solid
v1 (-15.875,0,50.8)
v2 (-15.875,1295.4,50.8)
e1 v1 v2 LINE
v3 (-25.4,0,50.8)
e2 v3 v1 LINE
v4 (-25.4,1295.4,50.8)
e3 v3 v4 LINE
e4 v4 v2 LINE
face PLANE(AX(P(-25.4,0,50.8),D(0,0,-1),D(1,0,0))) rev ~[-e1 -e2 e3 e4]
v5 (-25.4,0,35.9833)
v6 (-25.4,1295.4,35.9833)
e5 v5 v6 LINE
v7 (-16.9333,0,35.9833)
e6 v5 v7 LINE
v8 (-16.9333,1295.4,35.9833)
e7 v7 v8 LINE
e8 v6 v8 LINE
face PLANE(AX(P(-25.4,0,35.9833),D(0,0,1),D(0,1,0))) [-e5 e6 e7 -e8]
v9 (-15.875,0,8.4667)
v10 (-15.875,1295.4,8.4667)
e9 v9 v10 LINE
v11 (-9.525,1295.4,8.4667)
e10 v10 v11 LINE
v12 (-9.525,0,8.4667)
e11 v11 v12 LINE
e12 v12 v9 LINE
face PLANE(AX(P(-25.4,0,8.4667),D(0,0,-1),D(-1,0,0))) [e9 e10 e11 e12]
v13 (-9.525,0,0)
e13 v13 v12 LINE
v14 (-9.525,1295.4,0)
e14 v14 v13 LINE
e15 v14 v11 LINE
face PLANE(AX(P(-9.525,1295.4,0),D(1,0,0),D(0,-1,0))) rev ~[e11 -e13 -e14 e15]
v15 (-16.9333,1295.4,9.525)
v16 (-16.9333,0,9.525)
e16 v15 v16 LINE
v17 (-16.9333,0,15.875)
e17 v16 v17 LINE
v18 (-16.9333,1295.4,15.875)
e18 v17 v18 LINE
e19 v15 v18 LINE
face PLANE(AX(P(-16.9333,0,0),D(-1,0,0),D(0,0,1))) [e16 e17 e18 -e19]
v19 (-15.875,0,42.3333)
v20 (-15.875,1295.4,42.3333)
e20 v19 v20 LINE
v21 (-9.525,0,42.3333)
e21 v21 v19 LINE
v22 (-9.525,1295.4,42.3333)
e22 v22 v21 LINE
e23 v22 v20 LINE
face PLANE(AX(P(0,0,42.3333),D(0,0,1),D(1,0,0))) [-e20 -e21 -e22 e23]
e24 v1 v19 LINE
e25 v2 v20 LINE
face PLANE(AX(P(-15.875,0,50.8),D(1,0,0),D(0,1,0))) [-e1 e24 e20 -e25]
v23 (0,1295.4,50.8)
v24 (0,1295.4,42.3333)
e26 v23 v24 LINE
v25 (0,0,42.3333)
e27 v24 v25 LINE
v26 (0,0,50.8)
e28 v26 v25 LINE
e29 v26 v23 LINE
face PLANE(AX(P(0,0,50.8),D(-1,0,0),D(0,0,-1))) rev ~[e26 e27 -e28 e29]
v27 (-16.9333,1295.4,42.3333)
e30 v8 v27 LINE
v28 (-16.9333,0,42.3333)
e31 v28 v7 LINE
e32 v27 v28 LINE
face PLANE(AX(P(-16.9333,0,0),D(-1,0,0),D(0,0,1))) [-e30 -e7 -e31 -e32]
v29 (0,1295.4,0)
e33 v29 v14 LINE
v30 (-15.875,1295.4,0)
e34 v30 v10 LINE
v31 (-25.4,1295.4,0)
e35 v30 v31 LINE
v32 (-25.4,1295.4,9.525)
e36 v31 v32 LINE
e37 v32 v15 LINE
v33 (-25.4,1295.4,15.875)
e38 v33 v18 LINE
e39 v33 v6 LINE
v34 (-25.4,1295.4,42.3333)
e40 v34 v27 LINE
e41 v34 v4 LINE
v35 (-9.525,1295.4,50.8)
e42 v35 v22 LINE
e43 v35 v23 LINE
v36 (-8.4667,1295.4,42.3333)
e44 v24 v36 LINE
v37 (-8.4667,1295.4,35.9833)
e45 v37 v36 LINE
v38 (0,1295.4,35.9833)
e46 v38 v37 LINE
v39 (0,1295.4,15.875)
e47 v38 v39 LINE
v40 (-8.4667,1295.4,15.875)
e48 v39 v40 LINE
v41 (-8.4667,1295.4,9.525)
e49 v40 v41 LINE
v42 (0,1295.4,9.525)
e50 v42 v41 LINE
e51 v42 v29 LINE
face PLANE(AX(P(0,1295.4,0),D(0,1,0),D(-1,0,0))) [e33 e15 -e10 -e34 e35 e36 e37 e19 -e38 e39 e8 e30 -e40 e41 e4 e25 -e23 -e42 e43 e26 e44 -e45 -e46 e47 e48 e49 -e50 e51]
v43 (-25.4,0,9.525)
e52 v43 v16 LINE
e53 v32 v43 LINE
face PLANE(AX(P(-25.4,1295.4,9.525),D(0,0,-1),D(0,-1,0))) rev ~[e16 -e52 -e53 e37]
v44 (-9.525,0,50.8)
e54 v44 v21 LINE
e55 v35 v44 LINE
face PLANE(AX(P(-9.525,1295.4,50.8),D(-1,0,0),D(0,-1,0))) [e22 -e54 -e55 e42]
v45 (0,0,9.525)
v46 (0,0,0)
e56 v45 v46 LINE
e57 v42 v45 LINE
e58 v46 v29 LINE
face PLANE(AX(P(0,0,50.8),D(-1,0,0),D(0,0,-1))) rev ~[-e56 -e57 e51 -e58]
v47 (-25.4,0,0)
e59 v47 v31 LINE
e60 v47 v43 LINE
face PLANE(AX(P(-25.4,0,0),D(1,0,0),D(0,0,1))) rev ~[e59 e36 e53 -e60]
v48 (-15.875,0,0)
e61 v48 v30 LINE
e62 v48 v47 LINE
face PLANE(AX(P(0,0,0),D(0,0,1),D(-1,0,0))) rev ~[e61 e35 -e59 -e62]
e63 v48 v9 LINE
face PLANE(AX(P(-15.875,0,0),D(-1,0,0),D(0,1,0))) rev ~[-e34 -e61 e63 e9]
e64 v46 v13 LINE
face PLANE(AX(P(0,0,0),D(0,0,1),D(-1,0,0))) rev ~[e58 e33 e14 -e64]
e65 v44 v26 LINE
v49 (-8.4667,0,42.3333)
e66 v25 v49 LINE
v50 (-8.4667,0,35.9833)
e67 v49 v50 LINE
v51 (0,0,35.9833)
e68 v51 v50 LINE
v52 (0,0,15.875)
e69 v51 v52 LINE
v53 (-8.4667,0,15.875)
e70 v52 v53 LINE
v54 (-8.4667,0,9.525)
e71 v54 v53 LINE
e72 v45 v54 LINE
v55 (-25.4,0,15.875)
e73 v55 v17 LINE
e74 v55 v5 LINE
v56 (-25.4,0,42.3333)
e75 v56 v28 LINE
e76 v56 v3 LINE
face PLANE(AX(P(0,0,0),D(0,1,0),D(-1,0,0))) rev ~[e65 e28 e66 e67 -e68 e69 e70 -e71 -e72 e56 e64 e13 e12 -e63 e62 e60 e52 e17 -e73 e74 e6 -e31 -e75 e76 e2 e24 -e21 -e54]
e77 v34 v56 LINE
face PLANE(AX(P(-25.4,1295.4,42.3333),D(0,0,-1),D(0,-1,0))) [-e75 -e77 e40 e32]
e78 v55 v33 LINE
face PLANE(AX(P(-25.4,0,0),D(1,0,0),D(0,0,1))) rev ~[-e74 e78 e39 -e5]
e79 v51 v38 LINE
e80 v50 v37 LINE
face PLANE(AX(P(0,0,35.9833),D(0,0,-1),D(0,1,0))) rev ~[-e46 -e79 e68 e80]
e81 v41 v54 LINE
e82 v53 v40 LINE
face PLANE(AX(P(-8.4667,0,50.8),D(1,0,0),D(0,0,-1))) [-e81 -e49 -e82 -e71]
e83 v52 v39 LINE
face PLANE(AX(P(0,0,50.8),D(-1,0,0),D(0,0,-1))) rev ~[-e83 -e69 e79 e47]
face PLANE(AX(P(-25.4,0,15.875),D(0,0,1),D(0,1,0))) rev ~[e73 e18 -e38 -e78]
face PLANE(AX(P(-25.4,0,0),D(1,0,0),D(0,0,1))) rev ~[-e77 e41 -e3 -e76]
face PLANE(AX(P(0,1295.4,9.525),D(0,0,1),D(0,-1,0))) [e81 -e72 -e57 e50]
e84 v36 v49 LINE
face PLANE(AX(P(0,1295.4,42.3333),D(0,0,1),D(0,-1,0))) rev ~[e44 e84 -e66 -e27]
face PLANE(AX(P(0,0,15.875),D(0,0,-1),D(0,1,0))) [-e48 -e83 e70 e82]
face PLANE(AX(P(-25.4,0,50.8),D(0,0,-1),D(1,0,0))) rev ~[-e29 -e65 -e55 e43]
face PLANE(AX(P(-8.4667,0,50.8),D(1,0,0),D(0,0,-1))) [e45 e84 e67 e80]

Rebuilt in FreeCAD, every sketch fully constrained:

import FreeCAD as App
import Part
import Sketcher
from FreeCAD import Vector
Q = App.Units.Quantity


def add_polygon(sketch, points):
    """Adds a closed chain of lines whose ends are joined by coincident constraints."""
    first, n = sketch.GeometryCount, len(points)
    for a, b in zip(points, points[1:] + points[:1]):
        sketch.addGeometry(Part.LineSegment(App.Vector(*a, 0), App.Vector(*b, 0)), False)
    for i in range(n):
        sketch.addConstraint(Sketcher.Constraint("Coincident", first + i, 2, first + (i + 1) % n, 1))

doc = App.newDocument("Part")
body = doc.addObject("PartDesign::Body", "Body")

# Sketch on XZ plane
sketch1 = body.newObject("Sketcher::SketchObject", "Sketch")
sketch1.AttachmentSupport = (doc.getObject("XZ_Plane"), [""])
sketch1.MapMode = "FlatFace"
add_polygon(sketch1, [(0, 51), (0, 0), (-25, 0), (-25, 51)])  # lines 0-3
sketch1.addConstraint([
    Sketcher.Constraint("Vertical", 0),
    Sketcher.Constraint("Horizontal", 1),
    Sketcher.Constraint("Vertical", 2),
    Sketcher.Constraint("Horizontal", 3),
    Sketcher.Constraint("Coincident", 0, 2, -1, 1),
    Sketcher.Constraint("DistanceX", 1, 2, 1, 1, Q("1 in")),
    Sketcher.Constraint("DistanceY", 0, 2, 0, 1, Q("2 in")),
])
pad1 = body.newObject("PartDesign::Pad", "Pad")
pad1.Profile = sketch1
pad1.Length = Q("51 in")
pad1.Reversed = True

# Sketch on XY plane
sketch2 = body.newObject("Sketcher::SketchObject", "Sketch001")
sketch2.AttachmentSupport = (doc.getObject("XY_Plane"), [""])
sketch2.MapMode = "FlatFace"
sketch2.AttachmentOffset = App.Placement(Vector(0, 0, 2 * 25.4), App.Rotation())
add_polygon(sketch2, [(-16, 0), (-10, 0), (-10, 1295), (-16, 1295)])  # lines 0-3
sketch2.addConstraint([
    Sketcher.Constraint("Horizontal", 0),
    Sketcher.Constraint("Vertical", 1),
    Sketcher.Constraint("Horizontal", 2),
    Sketcher.Constraint("Vertical", 3),
    Sketcher.Constraint("PointOnObject", 0, 2, -1),
    Sketcher.Constraint("DistanceX", 0, 1, 0, 2, Q("0.25 in")),
    Sketcher.Constraint("DistanceY", 1, 1, 1, 2, Q("51 in")),
    Sketcher.Constraint("DistanceX", 0, 2, -1, 1, Q("0.375 in")),
])
pocket1 = body.newObject("PartDesign::Pocket", "Pocket")
pocket1.Profile = sketch2
pocket1.Length = 8.4667

# Sketch on XY plane
sketch3 = body.newObject("Sketcher::SketchObject", "Sketch002")
sketch3.AttachmentSupport = (doc.getObject("XY_Plane"), [""])
sketch3.MapMode = "FlatFace"
add_polygon(sketch3, [(-10, 1295), (-10, 0), (-16, 0), (-16, 1295)])  # lines 0-3
sketch3.addConstraint([
    Sketcher.Constraint("Vertical", 0),
    Sketcher.Constraint("Horizontal", 1),
    Sketcher.Constraint("Vertical", 2),
    Sketcher.Constraint("Horizontal", 3),
    Sketcher.Constraint("PointOnObject", 0, 2, -1),
    Sketcher.Constraint("DistanceY", 0, 2, 0, 1, Q("51 in")),
    Sketcher.Constraint("DistanceX", 1, 2, 1, 1, Q("0.25 in")),
    Sketcher.Constraint("DistanceX", 0, 2, -1, 1, Q("0.375 in")),
])
pocket2 = body.newObject("PartDesign::Pocket", "Pocket001")
pocket2.Profile = sketch3
pocket2.Length = 8.4667
pocket2.Reversed = True

# Sketch on YZ plane
sketch4 = body.newObject("Sketcher::SketchObject", "Sketch003")
sketch4.AttachmentSupport = (doc.getObject("YZ_Plane"), [""])
sketch4.MapMode = "FlatFace"
sketch4.AttachmentOffset = App.Placement(Vector(0, 0, -1 * 25.4), App.Rotation())
add_polygon(sketch4, [(1295, 42), (1295, 36), (0, 36), (0, 42)])  # lines 0-3
add_polygon(sketch4, [(1295, 16), (1295, 10), (0, 10), (0, 16)])  # lines 4-7
sketch4.addConstraint([
    Sketcher.Constraint("Vertical", 0),
    Sketcher.Constraint("Horizontal", 1),
    Sketcher.Constraint("Vertical", 2),
    Sketcher.Constraint("Horizontal", 3),
    Sketcher.Constraint("Vertical", 4),
    Sketcher.Constraint("Horizontal", 5),
    Sketcher.Constraint("Vertical", 6),
    Sketcher.Constraint("Horizontal", 7),
    Sketcher.Constraint("PointOnObject", 1, 2, -2),
    Sketcher.Constraint("PointOnObject", 5, 2, -2),
    Sketcher.Constraint("Vertical", 3, 2, 4, 2),
    Sketcher.Constraint("Equal", 2, 4),
    Sketcher.Constraint("DistanceY", 0, 2, 0, 1, Q("0.25 in")),
    Sketcher.Constraint("DistanceX", 1, 2, 1, 1, Q("51 in")),
    Sketcher.Constraint("DistanceY", -1, 1, 4, 2, Q("0.375 in")),
    Sketcher.Constraint("DistanceY", -1, 1, 0, 2, Q("35.9833 mm")),
])
pocket3 = body.newObject("PartDesign::Pocket", "Pocket002")
pocket3.Profile = sketch4
pocket3.Length = 8.4667
pocket3.Reversed = True

# Sketch on YZ plane
sketch5 = body.newObject("Sketcher::SketchObject", "Sketch004")
sketch5.AttachmentSupport = (doc.getObject("YZ_Plane"), [""])
sketch5.MapMode = "FlatFace"
add_polygon(sketch5, [(1295, 42), (0, 42), (0, 36), (1295, 36)])  # lines 0-3
add_polygon(sketch5, [(1295, 10), (1295, 16), (0, 16), (0, 10)])  # lines 4-7
sketch5.addConstraint([
    Sketcher.Constraint("Horizontal", 0),
    Sketcher.Constraint("Vertical", 1),
    Sketcher.Constraint("Horizontal", 2),
    Sketcher.Constraint("Vertical", 3),
    Sketcher.Constraint("Vertical", 4),
    Sketcher.Constraint("Horizontal", 5),
    Sketcher.Constraint("Vertical", 6),
    Sketcher.Constraint("Horizontal", 7),
    Sketcher.Constraint("PointOnObject", 0, 2, -2),
    Sketcher.Constraint("PointOnObject", 5, 2, -2),
    Sketcher.Constraint("Vertical", 3, 2, 4, 2),
    Sketcher.Constraint("Equal", 3, 4),
    Sketcher.Constraint("DistanceX", 0, 2, 0, 1, Q("51 in")),
    Sketcher.Constraint("DistanceY", 1, 2, 1, 1, Q("0.25 in")),
    Sketcher.Constraint("DistanceY", -1, 1, 4, 2, Q("0.625 in")),
    Sketcher.Constraint("DistanceY", -1, 1, 0, 2, Q("42.3333 mm")),
])
pocket4 = body.newObject("PartDesign::Pocket", "Pocket003")
pocket4.Profile = sketch5
pocket4.Length = 8.4667

doc.recompute()
